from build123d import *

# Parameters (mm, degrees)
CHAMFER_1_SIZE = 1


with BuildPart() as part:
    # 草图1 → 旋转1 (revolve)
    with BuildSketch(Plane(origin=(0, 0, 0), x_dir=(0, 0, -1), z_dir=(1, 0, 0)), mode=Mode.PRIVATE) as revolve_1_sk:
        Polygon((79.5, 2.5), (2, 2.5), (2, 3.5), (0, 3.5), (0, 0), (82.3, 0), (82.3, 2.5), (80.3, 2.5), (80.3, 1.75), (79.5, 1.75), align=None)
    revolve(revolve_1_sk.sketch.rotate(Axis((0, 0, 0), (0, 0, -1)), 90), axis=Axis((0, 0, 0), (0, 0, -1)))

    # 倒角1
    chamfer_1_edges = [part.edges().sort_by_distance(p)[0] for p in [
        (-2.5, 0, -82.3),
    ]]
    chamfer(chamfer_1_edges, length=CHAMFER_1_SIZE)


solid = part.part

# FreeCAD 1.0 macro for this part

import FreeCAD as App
import Part
import Sketcher


def edges_at(feature, points):
    """Names of the edges that pass closest to the given points."""
    edges = feature.Shape.Edges
    near = lambda p: min(range(len(edges)), key=lambda i: edges[i].distToShape(Part.Vertex(*p))[0])
    return sorted({f"Edge{near(p) + 1}" for p in points})


def add_polygon(sketch, points):
    """Adds a closed chain of lines whose ends are joined by coincident constraints."""
    first, n = sketch.GeometryCount, len(points)
    for a, b in zip(points, points[1:] + points[:1]):
        sketch.addGeometry(Part.LineSegment(App.Vector(*a, 0), App.Vector(*b, 0)), False)
    for i in range(n):
        sketch.addConstraint(Sketcher.Constraint("Coincident", first + i, 2, first + (i + 1) % n, 1))

doc = App.newDocument("Part")
body = doc.addObject("PartDesign::Body", "Body")

# Sketch on YZ plane
sketch1 = body.newObject("Sketcher::SketchObject", "Sketch")
sketch1.AttachmentSupport = (doc.getObject("YZ_Plane"), [""])
sketch1.MapMode = "FlatFace"
add_polygon(sketch1, [(2.5, -79.5), (2.5, -2), (3.5, -2), (3.5, 0), (0, 0), (0, -82.3), (2.5, -82.3), (2.5, -80.3), (1.8, -80.3), (1.8, -79.5)])  # lines 0-9
sketch1.addConstraint(Sketcher.Constraint("Vertical", 0))
sketch1.addConstraint(Sketcher.Constraint("Horizontal", 1))
sketch1.addConstraint(Sketcher.Constraint("Vertical", 2))
sketch1.addConstraint(Sketcher.Constraint("Horizontal", 3))
sketch1.addConstraint(Sketcher.Constraint("Vertical", 4))
sketch1.addConstraint(Sketcher.Constraint("Horizontal", 5))
sketch1.addConstraint(Sketcher.Constraint("Vertical", 6))
sketch1.addConstraint(Sketcher.Constraint("Horizontal", 7))
sketch1.addConstraint(Sketcher.Constraint("Vertical", 8))
sketch1.addConstraint(Sketcher.Constraint("Horizontal", 9))
sketch1.addConstraint(Sketcher.Constraint("Coincident", 3, 2, -1, 1))
sketch1.addConstraint(Sketcher.Constraint("Vertical", 0, 2, 5, 2))
sketch1.addConstraint(Sketcher.Constraint("Equal", 2, 6))
sketch1.addConstraint(Sketcher.Constraint("DistanceX", 1, 1, 1, 2, 1.0))
sketch1.addConstraint(Sketcher.Constraint("DistanceY", 2, 1, 2, 2, 2.0))
sketch1.addConstraint(Sketcher.Constraint("DistanceX", 3, 2, 3, 1, 3.5))
sketch1.addConstraint(Sketcher.Constraint("DistanceY", 0, 1, 0, 2, 77.5))
sketch1.addConstraint(Sketcher.Constraint("DistanceY", 4, 2, 4, 1, 82.3))
sketch1.addConstraint(Sketcher.Constraint("DistanceX", 7, 2, 7, 1, 0.75))
revolution = body.newObject("PartDesign::Revolution", "Revolution")
revolution.Profile = sketch1
revolution.ReferenceAxis = (sketch1, ["V_Axis"])
revolution.Angle = 360
doc.recompute()

chamfer = body.newObject("PartDesign::Chamfer", "Chamfer")
chamfer.Base = (revolution, edges_at(revolution, [(-2.5, 0, -82.3)]))
chamfer.Size = 1

doc.recompute()
